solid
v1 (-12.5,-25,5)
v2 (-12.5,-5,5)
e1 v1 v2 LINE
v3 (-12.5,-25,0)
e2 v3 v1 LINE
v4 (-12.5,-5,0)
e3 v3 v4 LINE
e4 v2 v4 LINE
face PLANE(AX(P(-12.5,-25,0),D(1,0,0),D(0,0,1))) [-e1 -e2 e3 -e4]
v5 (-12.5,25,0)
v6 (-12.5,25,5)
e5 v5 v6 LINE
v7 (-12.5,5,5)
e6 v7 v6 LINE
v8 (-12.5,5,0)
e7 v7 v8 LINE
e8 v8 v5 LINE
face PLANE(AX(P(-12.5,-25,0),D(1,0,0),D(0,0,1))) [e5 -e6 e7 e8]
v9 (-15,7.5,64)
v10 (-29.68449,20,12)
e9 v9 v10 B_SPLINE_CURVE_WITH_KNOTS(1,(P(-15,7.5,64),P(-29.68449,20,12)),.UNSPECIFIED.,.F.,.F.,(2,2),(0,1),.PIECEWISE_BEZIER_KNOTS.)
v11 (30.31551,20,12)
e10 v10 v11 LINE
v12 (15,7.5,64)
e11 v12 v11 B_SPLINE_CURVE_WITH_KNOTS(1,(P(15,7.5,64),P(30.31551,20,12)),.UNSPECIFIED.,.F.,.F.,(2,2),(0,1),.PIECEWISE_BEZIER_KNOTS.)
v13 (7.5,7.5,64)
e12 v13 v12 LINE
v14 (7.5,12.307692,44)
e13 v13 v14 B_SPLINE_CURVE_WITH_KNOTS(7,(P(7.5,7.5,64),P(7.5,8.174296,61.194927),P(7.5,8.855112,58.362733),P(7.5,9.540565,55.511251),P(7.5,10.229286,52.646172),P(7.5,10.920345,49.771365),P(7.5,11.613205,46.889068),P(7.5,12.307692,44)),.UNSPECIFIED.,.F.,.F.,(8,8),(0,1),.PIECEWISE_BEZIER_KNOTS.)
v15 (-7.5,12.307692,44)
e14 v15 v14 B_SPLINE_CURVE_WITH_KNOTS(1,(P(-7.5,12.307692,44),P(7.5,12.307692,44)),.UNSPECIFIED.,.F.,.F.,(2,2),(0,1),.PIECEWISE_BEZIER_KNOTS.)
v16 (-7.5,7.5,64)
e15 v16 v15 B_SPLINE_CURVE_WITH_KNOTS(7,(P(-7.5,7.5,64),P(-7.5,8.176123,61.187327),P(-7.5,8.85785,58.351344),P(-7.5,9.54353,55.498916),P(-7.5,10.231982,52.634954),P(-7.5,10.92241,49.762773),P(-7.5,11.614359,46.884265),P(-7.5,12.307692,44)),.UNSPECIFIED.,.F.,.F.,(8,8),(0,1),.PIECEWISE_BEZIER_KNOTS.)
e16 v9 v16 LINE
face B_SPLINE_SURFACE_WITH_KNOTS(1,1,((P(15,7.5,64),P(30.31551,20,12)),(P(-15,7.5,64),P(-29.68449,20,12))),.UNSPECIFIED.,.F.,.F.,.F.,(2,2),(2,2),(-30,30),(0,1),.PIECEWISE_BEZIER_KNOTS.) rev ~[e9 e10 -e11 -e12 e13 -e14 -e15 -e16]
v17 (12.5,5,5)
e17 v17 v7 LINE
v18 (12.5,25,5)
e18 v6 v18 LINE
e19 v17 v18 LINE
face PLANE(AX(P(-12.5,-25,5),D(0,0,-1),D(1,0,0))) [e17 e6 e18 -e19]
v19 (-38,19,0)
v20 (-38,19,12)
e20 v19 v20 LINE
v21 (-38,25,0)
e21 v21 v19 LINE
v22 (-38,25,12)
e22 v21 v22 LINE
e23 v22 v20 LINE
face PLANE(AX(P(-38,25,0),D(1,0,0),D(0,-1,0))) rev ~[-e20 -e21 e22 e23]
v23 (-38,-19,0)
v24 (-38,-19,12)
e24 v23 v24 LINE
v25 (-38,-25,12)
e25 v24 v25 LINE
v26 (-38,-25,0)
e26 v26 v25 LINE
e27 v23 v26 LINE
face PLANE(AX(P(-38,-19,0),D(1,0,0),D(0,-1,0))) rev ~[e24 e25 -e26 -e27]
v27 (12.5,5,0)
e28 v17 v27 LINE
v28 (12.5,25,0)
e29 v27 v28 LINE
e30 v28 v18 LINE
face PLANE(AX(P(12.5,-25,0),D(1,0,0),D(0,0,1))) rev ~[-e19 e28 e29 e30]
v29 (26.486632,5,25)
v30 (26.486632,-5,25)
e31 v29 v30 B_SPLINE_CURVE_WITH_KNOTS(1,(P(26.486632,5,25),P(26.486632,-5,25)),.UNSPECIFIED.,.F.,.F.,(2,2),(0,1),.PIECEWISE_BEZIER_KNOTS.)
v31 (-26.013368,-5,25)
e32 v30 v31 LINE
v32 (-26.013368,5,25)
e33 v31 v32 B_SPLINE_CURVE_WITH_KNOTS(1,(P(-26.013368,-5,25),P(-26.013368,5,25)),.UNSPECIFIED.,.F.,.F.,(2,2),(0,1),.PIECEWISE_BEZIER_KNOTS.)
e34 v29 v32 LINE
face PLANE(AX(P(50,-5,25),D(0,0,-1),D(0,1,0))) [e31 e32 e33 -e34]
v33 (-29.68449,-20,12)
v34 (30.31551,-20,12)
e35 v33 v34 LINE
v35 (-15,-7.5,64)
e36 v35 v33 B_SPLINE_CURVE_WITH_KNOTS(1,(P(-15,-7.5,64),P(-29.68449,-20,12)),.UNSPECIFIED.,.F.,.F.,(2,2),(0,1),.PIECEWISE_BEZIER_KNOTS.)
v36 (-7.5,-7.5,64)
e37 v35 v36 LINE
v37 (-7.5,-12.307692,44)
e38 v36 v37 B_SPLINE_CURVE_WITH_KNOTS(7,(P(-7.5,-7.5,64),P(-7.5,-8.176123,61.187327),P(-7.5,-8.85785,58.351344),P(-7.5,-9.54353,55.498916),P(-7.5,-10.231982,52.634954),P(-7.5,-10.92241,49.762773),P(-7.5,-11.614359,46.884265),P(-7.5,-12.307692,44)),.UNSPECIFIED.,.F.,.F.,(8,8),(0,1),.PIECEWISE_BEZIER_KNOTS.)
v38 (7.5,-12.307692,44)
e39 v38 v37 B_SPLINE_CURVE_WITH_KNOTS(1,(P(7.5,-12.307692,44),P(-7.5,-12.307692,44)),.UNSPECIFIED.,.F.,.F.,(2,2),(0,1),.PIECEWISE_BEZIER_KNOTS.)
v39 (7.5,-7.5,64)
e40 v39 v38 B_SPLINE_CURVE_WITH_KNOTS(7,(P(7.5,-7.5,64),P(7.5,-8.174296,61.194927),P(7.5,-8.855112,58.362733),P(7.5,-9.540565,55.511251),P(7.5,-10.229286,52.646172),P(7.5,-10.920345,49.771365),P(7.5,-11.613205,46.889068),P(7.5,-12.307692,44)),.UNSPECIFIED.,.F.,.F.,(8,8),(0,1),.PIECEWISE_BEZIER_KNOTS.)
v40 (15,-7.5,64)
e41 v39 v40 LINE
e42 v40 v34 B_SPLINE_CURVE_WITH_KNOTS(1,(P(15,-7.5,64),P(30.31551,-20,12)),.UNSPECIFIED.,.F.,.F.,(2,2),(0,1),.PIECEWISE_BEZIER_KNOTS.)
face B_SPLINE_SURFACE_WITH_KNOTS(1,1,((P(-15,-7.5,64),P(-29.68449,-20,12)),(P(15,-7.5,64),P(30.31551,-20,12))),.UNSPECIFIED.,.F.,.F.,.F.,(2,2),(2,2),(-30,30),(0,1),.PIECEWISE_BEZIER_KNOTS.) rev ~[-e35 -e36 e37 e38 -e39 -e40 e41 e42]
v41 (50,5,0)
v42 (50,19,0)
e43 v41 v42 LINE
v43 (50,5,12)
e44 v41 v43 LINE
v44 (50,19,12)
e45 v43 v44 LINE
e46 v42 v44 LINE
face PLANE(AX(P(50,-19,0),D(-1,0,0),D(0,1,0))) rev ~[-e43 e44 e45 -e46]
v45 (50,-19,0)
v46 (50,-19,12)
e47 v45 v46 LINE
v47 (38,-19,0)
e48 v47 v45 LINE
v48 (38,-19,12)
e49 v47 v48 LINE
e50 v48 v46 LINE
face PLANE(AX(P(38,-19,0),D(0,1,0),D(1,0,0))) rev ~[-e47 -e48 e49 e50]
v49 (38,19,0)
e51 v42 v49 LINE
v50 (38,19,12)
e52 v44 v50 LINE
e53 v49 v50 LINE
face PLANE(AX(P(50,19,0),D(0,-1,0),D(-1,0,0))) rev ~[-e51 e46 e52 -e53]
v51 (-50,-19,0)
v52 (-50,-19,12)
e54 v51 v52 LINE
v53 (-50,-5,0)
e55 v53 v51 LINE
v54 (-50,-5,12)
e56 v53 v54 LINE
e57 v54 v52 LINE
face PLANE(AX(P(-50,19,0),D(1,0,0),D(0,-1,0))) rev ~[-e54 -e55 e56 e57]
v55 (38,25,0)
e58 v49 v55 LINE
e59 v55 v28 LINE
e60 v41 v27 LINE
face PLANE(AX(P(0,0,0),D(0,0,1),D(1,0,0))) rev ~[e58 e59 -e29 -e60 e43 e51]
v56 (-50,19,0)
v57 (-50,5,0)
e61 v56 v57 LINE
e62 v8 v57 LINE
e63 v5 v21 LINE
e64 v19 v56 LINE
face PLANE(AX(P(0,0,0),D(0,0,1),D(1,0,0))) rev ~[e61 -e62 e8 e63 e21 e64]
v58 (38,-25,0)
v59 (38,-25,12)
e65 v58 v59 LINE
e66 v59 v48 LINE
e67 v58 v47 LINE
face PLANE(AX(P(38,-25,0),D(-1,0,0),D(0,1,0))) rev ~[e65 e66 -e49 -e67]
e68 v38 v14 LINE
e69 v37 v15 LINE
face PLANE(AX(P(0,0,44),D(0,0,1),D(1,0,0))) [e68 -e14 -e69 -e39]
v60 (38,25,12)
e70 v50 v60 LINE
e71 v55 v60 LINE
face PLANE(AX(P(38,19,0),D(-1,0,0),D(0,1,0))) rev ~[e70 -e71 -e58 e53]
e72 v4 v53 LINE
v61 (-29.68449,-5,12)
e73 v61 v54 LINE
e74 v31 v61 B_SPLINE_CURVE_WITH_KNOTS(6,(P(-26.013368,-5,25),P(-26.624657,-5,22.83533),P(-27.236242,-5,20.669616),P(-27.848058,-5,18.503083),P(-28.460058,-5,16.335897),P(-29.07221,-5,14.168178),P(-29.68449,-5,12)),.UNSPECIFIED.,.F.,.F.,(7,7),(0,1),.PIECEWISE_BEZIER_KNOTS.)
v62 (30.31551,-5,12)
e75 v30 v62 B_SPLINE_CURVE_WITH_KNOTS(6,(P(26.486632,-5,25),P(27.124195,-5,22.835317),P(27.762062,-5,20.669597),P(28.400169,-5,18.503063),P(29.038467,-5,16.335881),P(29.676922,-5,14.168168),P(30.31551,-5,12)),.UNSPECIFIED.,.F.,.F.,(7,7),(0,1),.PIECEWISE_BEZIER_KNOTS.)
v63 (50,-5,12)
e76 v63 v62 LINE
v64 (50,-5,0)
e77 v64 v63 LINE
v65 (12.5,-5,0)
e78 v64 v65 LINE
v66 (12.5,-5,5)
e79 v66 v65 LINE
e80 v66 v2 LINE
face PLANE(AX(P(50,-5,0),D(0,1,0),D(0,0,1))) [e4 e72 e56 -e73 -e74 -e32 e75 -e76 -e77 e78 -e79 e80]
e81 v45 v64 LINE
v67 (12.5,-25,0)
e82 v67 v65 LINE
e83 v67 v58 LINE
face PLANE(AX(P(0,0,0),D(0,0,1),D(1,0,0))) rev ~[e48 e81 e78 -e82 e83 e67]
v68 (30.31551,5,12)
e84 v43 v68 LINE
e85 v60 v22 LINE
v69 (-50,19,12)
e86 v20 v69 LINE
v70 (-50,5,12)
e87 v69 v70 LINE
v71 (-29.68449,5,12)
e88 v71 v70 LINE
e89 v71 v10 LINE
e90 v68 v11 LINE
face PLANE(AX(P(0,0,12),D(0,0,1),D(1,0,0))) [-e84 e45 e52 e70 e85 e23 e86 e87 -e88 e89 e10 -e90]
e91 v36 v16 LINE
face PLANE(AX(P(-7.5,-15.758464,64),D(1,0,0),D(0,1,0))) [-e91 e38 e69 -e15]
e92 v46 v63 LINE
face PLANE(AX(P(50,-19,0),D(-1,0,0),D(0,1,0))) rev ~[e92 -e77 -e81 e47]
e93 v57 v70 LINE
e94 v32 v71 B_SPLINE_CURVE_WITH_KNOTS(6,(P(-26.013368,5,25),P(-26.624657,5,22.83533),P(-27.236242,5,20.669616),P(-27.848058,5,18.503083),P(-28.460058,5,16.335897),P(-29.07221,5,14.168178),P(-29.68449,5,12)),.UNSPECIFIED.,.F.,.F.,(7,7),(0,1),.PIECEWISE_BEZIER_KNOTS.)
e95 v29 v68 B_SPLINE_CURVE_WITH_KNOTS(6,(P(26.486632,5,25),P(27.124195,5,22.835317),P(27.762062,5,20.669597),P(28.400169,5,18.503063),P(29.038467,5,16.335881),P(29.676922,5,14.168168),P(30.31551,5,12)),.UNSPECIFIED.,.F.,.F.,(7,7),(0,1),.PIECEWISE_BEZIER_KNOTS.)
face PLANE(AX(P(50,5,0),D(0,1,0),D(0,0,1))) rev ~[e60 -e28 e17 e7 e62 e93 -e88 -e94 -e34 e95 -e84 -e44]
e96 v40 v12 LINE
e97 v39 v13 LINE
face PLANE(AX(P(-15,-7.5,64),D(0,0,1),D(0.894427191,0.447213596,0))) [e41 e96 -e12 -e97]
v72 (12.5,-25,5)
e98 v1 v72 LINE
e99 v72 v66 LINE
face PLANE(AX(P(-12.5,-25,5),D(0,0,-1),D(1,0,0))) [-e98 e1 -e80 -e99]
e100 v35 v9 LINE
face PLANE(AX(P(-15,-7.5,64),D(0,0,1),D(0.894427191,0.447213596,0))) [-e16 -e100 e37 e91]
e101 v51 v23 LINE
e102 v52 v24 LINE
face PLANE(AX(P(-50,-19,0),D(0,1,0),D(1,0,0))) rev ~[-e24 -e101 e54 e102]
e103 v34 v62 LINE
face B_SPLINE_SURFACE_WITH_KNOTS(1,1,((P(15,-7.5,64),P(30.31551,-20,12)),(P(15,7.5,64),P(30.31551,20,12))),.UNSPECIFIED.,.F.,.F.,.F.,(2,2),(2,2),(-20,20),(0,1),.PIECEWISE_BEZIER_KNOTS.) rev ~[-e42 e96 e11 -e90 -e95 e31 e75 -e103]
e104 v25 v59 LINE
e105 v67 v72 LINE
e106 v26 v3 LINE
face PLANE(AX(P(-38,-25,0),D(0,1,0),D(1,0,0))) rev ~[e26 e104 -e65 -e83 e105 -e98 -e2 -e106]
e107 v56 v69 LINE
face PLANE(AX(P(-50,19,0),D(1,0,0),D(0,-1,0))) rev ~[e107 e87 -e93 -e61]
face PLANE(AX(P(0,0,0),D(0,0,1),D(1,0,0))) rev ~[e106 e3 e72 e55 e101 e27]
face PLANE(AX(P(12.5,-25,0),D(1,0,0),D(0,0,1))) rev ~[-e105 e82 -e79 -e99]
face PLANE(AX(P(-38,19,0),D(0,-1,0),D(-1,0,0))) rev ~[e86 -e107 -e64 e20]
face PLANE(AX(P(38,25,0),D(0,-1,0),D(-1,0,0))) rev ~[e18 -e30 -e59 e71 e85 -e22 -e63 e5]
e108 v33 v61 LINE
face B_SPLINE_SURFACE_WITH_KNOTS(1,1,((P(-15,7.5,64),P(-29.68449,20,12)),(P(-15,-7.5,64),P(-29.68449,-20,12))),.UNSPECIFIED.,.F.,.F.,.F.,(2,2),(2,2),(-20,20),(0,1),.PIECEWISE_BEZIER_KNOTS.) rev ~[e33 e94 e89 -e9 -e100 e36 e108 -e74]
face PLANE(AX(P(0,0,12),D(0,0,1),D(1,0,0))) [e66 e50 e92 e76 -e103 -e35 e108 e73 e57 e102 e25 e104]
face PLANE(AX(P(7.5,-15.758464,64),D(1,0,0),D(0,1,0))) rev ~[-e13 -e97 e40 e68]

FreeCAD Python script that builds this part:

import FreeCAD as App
import Part
import Sketcher

doc = App.newDocument("Part")
body = doc.addObject("PartDesign::Body", "Body")

sketch1 = body.newObject("Sketcher::SketchObject", "Sketch")
sketch1.AttachmentSupport = (doc.getObject("XY_Plane"), [""])
sketch1.MapMode = "FlatFace"
sketch1.AttachmentOffset = App.Placement(App.Vector(0, 0, 64), App.Rotation())
sketch1.addGeometry(Part.LineSegment(App.Vector(-15, 7.5, 0), App.Vector(-15, -7.5, 0)), False)
sketch1.addGeometry(Part.LineSegment(App.Vector(-15, -7.5, 0), App.Vector(15, -7.5, 0)), False)
sketch1.addGeometry(Part.LineSegment(App.Vector(15, -7.5, 0), App.Vector(15, 7.5, 0)), False)
sketch1.addGeometry(Part.LineSegment(App.Vector(15, 7.5, 0), App.Vector(-15, 7.5, 0)), False)
sketch1.addConstraint(Sketcher.Constraint("Coincident", 0, 2, 1, 1))
sketch1.addConstraint(Sketcher.Constraint("Coincident", 1, 2, 2, 1))
sketch1.addConstraint(Sketcher.Constraint("Coincident", 2, 2, 3, 1))
sketch1.addConstraint(Sketcher.Constraint("Coincident", 3, 2, 0, 1))
sketch1.addConstraint(Sketcher.Constraint("Vertical", 0))
sketch1.addConstraint(Sketcher.Constraint("Horizontal", 1))
sketch1.addConstraint(Sketcher.Constraint("Vertical", 2))
sketch1.addConstraint(Sketcher.Constraint("Horizontal", 3))
sketch1.addConstraint(Sketcher.Constraint("Symmetric", 0, 2, 2, 2, -1, 1))
sketch1.addConstraint(Sketcher.Constraint("DistanceX", 1, 1, 1, 2, 30.0))
sketch1.addConstraint(Sketcher.Constraint("DistanceY", 0, 2, 0, 1, 15.0))

sketch2 = body.newObject("Sketcher::SketchObject", "Sketch001")
sketch2.AttachmentSupport = (doc.getObject("XY_Plane"), [""])
sketch2.MapMode = "FlatFace"
sketch2.AttachmentOffset = App.Placement(App.Vector(0, 0, 12), App.Rotation())
sketch2.addGeometry(Part.LineSegment(App.Vector(-29.68449, 20, 0), App.Vector(-29.68449, -20, 0)), False)
sketch2.addGeometry(Part.LineSegment(App.Vector(-29.68449, -20, 0), App.Vector(30.31551, -20, 0)), False)
sketch2.addGeometry(Part.LineSegment(App.Vector(30.31551, -20, 0), App.Vector(30.31551, 20, 0)), False)
sketch2.addGeometry(Part.LineSegment(App.Vector(30.31551, 20, 0), App.Vector(-29.68449, 20, 0)), False)
sketch2.addConstraint(Sketcher.Constraint("Coincident", 0, 2, 1, 1))
sketch2.addConstraint(Sketcher.Constraint("Coincident", 1, 2, 2, 1))
sketch2.addConstraint(Sketcher.Constraint("Coincident", 2, 2, 3, 1))
sketch2.addConstraint(Sketcher.Constraint("Coincident", 3, 2, 0, 1))
sketch2.addConstraint(Sketcher.Constraint("Vertical", 0))
sketch2.addConstraint(Sketcher.Constraint("Horizontal", 1))
sketch2.addConstraint(Sketcher.Constraint("Vertical", 2))
sketch2.addConstraint(Sketcher.Constraint("Horizontal", 3))
sketch2.addConstraint(Sketcher.Constraint("DistanceX", 1, 1, 1, 2, 60.0))
sketch2.addConstraint(Sketcher.Constraint("DistanceY", 0, 2, 0, 1, 40.0))
sketch2.addConstraint(Sketcher.Constraint("DistanceY", 0, 2, -1, 1, 20.0))
sketch2.addConstraint(Sketcher.Constraint("DistanceX", 0, 2, -1, 1, 29.68449))

additiveloft = body.newObject("PartDesign::AdditiveLoft", "AdditiveLoft")
additiveloft.Profile = sketch1
additiveloft.Sections = [sketch2]
body2 = doc.addObject("PartDesign::Body", "Body001")

sketch3 = body2.newObject("Sketcher::SketchObject", "Sketch002")
sketch3.AttachmentSupport = (doc.getObject("XY_Plane001"), [""])
sketch3.MapMode = "FlatFace"
sketch3.addGeometry(Part.LineSegment(App.Vector(-38, -25, 0), App.Vector(38, -25, 0)), False)
sketch3.addGeometry(Part.LineSegment(App.Vector(38, -25, 0), App.Vector(38, -19, 0)), False)
sketch3.addGeometry(Part.LineSegment(App.Vector(38, -19, 0), App.Vector(50, -19, 0)), False)
sketch3.addGeometry(Part.LineSegment(App.Vector(50, -19, 0), App.Vector(50, 19, 0)), False)
sketch3.addGeometry(Part.LineSegment(App.Vector(50, 19, 0), App.Vector(38, 19, 0)), False)
sketch3.addGeometry(Part.LineSegment(App.Vector(38, 19, 0), App.Vector(38, 25, 0)), False)
sketch3.addGeometry(Part.LineSegment(App.Vector(38, 25, 0), App.Vector(-38, 25, 0)), False)
sketch3.addGeometry(Part.LineSegment(App.Vector(-38, 25, 0), App.Vector(-38, 19, 0)), False)
sketch3.addGeometry(Part.LineSegment(App.Vector(-38, 19, 0), App.Vector(-50, 19, 0)), False)
sketch3.addGeometry(Part.LineSegment(App.Vector(-50, 19, 0), App.Vector(-50, -19, 0)), False)
sketch3.addGeometry(Part.LineSegment(App.Vector(-50, -19, 0), App.Vector(-38, -19, 0)), False)
sketch3.addGeometry(Part.LineSegment(App.Vector(-38, -19, 0), App.Vector(-38, -25, 0)), False)
sketch3.addConstraint(Sketcher.Constraint("Coincident", 0, 2, 1, 1))
sketch3.addConstraint(Sketcher.Constraint("Coincident", 1, 2, 2, 1))
sketch3.addConstraint(Sketcher.Constraint("Coincident", 2, 2, 3, 1))
sketch3.addConstraint(Sketcher.Constraint("Coincident", 3, 2, 4, 1))
sketch3.addConstraint(Sketcher.Constraint("Coincident", 4, 2, 5, 1))
sketch3.addConstraint(Sketcher.Constraint("Coincident", 5, 2, 6, 1))
sketch3.addConstraint(Sketcher.Constraint("Coincident", 6, 2, 7, 1))
sketch3.addConstraint(Sketcher.Constraint("Coincident", 7, 2, 8, 1))
sketch3.addConstraint(Sketcher.Constraint("Coincident", 8, 2, 9, 1))
sketch3.addConstraint(Sketcher.Constraint("Coincident", 9, 2, 10, 1))
sketch3.addConstraint(Sketcher.Constraint("Coincident", 10, 2, 11, 1))
sketch3.addConstraint(Sketcher.Constraint("Coincident", 11, 2, 0, 1))
sketch3.addConstraint(Sketcher.Constraint("Horizontal", 0))
sketch3.addConstraint(Sketcher.Constraint("Vertical", 1))
sketch3.addConstraint(Sketcher.Constraint("Horizontal", 2))
sketch3.addConstraint(Sketcher.Constraint("Vertical", 3))
sketch3.addConstraint(Sketcher.Constraint("Horizontal", 4))
sketch3.addConstraint(Sketcher.Constraint("Vertical", 5))
sketch3.addConstraint(Sketcher.Constraint("Horizontal", 6))
sketch3.addConstraint(Sketcher.Constraint("Vertical", 7))
sketch3.addConstraint(Sketcher.Constraint("Horizontal", 8))
sketch3.addConstraint(Sketcher.Constraint("Vertical", 9))
sketch3.addConstraint(Sketcher.Constraint("Horizontal", 10))
sketch3.addConstraint(Sketcher.Constraint("Vertical", 11))
sketch3.addConstraint(Sketcher.Constraint("Symmetric", 0, 2, 6, 2, -1, 1))
sketch3.addConstraint(Sketcher.Constraint("Symmetric", 2, 2, 8, 2, -1, 1))
sketch3.addConstraint(Sketcher.Constraint("Symmetric", 4, 2, 10, 2, -1, 1))
sketch3.addConstraint(Sketcher.Constraint("Symmetric", 4, 2, 7, 2, -2))
sketch3.addConstraint(Sketcher.Constraint("DistanceX", 0, 1, 0, 2, 76.0))
sketch3.addConstraint(Sketcher.Constraint("DistanceX", 2, 1, 2, 2, 12.0))
sketch3.addConstraint(Sketcher.Constraint("DistanceY", 1, 1, 1, 2, 6.0))
sketch3.addConstraint(Sketcher.Constraint("DistanceY", 3, 1, 3, 2, 38.0))
pad1 = body2.newObject("PartDesign::Pad", "Pad")
pad1.Profile = sketch3
pad1.Length = 12
doc.recompute()

boolean = body2.newObject("PartDesign::Boolean", "Boolean")
boolean.Type = "Fuse"
boolean.addObjects([body])

sketch4 = body2.newObject("Sketcher::SketchObject", "Sketch003")
sketch4.AttachmentSupport = (doc.getObject("YZ_Plane001"), [""])
sketch4.MapMode = "FlatFace"
sketch4.AttachmentOffset = App.Placement(App.Vector(0, 0, 50), App.Rotation())
sketch4.addGeometry(Part.LineSegment(App.Vector(-5, 25, 0), App.Vector(-5, 0, 0)), False)
sketch4.addGeometry(Part.LineSegment(App.Vector(-5, 0, 0), App.Vector(5, 0, 0)), False)
sketch4.addGeometry(Part.LineSegment(App.Vector(5, 0, 0), App.Vector(5, 25, 0)), False)
sketch4.addGeometry(Part.LineSegment(App.Vector(5, 25, 0), App.Vector(-5, 25, 0)), False)
sketch4.addConstraint(Sketcher.Constraint("Coincident", 0, 2, 1, 1))
sketch4.addConstraint(Sketcher.Constraint("Coincident", 1, 2, 2, 1))
sketch4.addConstraint(Sketcher.Constraint("Coincident", 2, 2, 3, 1))
sketch4.addConstraint(Sketcher.Constraint("Coincident", 3, 2, 0, 1))
sketch4.addConstraint(Sketcher.Constraint("Vertical", 0))
sketch4.addConstraint(Sketcher.Constraint("Horizontal", 1))
sketch4.addConstraint(Sketcher.Constraint("Vertical", 2))
sketch4.addConstraint(Sketcher.Constraint("Horizontal", 3))
sketch4.addConstraint(Sketcher.Constraint("Symmetric", 0, 2, 1, 2, -1, 1))
sketch4.addConstraint(Sketcher.Constraint("DistanceX", 1, 1, 1, 2, 10.0))
sketch4.addConstraint(Sketcher.Constraint("DistanceY", 0, 2, 0, 1, 25.0))
pocket1 = body2.newObject("PartDesign::Pocket", "Pocket")
pocket1.Profile = sketch4
pocket1.Type = "ThroughAll"

sketch5 = body2.newObject("Sketcher::SketchObject", "Sketch004")
sketch5.AttachmentSupport = (doc.getObject("XY_Plane001"), [""])
sketch5.MapMode = "FlatFace"
sketch5.AttachmentOffset = App.Placement(App.Vector(0, 0, 64), App.Rotation())
sketch5.addGeometry(Part.LineSegment(App.Vector(-7.5, 15.758464, 0), App.Vector(-7.5, -15.758464, 0)), False)
sketch5.addGeometry(Part.LineSegment(App.Vector(-7.5, -15.758464, 0), App.Vector(7.5, -15.758464, 0)), False)
sketch5.addGeometry(Part.LineSegment(App.Vector(7.5, -15.758464, 0), App.Vector(7.5, 15.758464, 0)), False)
sketch5.addGeometry(Part.LineSegment(App.Vector(7.5, 15.758464, 0), App.Vector(-7.5, 15.758464, 0)), False)
sketch5.addConstraint(Sketcher.Constraint("Coincident", 0, 2, 1, 1))
sketch5.addConstraint(Sketcher.Constraint("Coincident", 1, 2, 2, 1))
sketch5.addConstraint(Sketcher.Constraint("Coincident", 2, 2, 3, 1))
sketch5.addConstraint(Sketcher.Constraint("Coincident", 3, 2, 0, 1))
sketch5.addConstraint(Sketcher.Constraint("Vertical", 0))
sketch5.addConstraint(Sketcher.Constraint("Horizontal", 1))
sketch5.addConstraint(Sketcher.Constraint("Vertical", 2))
sketch5.addConstraint(Sketcher.Constraint("Horizontal", 3))
sketch5.addConstraint(Sketcher.Constraint("Symmetric", 0, 2, 2, 2, -1, 1))
sketch5.addConstraint(Sketcher.Constraint("DistanceX", 1, 1, 1, 2, 15.0))
sketch5.addConstraint(Sketcher.Constraint("DistanceY", 0, 2, 0, 1, 31.516928))
pocket2 = body2.newObject("PartDesign::Pocket", "Pocket001")
pocket2.Profile = sketch5
pocket2.Length = 20

sketch6 = body2.newObject("Sketcher::SketchObject", "Sketch005")
sketch6.AttachmentSupport = (doc.getObject("XZ_Plane001"), [""])
sketch6.MapMode = "FlatFace"
sketch6.AttachmentOffset = App.Placement(App.Vector(0, 0, 25), App.Rotation())
sketch6.addGeometry(Part.LineSegment(App.Vector(-12.5, 5, 0), App.Vector(-12.5, 0, 0)), False)
sketch6.addGeometry(Part.LineSegment(App.Vector(-12.5, 0, 0), App.Vector(12.5, 0, 0)), False)
sketch6.addGeometry(Part.LineSegment(App.Vector(12.5, 0, 0), App.Vector(12.5, 5, 0)), False)
sketch6.addGeometry(Part.LineSegment(App.Vector(12.5, 5, 0), App.Vector(-12.5, 5, 0)), False)
sketch6.addConstraint(Sketcher.Constraint("Coincident", 0, 2, 1, 1))
sketch6.addConstraint(Sketcher.Constraint("Coincident", 1, 2, 2, 1))
sketch6.addConstraint(Sketcher.Constraint("Coincident", 2, 2, 3, 1))
sketch6.addConstraint(Sketcher.Constraint("Coincident", 3, 2, 0, 1))
sketch6.addConstraint(Sketcher.Constraint("Vertical", 0))
sketch6.addConstraint(Sketcher.Constraint("Horizontal", 1))
sketch6.addConstraint(Sketcher.Constraint("Vertical", 2))
sketch6.addConstraint(Sketcher.Constraint("Horizontal", 3))
sketch6.addConstraint(Sketcher.Constraint("Symmetric", 0, 2, 1, 2, -1, 1))
sketch6.addConstraint(Sketcher.Constraint("DistanceX", 1, 1, 1, 2, 25.0))
sketch6.addConstraint(Sketcher.Constraint("DistanceY", 0, 2, 0, 1, 5.0))
pocket3 = body2.newObject("PartDesign::Pocket", "Pocket002")
pocket3.Profile = sketch6
pocket3.Type = "ThroughAll"

doc.recompute()
